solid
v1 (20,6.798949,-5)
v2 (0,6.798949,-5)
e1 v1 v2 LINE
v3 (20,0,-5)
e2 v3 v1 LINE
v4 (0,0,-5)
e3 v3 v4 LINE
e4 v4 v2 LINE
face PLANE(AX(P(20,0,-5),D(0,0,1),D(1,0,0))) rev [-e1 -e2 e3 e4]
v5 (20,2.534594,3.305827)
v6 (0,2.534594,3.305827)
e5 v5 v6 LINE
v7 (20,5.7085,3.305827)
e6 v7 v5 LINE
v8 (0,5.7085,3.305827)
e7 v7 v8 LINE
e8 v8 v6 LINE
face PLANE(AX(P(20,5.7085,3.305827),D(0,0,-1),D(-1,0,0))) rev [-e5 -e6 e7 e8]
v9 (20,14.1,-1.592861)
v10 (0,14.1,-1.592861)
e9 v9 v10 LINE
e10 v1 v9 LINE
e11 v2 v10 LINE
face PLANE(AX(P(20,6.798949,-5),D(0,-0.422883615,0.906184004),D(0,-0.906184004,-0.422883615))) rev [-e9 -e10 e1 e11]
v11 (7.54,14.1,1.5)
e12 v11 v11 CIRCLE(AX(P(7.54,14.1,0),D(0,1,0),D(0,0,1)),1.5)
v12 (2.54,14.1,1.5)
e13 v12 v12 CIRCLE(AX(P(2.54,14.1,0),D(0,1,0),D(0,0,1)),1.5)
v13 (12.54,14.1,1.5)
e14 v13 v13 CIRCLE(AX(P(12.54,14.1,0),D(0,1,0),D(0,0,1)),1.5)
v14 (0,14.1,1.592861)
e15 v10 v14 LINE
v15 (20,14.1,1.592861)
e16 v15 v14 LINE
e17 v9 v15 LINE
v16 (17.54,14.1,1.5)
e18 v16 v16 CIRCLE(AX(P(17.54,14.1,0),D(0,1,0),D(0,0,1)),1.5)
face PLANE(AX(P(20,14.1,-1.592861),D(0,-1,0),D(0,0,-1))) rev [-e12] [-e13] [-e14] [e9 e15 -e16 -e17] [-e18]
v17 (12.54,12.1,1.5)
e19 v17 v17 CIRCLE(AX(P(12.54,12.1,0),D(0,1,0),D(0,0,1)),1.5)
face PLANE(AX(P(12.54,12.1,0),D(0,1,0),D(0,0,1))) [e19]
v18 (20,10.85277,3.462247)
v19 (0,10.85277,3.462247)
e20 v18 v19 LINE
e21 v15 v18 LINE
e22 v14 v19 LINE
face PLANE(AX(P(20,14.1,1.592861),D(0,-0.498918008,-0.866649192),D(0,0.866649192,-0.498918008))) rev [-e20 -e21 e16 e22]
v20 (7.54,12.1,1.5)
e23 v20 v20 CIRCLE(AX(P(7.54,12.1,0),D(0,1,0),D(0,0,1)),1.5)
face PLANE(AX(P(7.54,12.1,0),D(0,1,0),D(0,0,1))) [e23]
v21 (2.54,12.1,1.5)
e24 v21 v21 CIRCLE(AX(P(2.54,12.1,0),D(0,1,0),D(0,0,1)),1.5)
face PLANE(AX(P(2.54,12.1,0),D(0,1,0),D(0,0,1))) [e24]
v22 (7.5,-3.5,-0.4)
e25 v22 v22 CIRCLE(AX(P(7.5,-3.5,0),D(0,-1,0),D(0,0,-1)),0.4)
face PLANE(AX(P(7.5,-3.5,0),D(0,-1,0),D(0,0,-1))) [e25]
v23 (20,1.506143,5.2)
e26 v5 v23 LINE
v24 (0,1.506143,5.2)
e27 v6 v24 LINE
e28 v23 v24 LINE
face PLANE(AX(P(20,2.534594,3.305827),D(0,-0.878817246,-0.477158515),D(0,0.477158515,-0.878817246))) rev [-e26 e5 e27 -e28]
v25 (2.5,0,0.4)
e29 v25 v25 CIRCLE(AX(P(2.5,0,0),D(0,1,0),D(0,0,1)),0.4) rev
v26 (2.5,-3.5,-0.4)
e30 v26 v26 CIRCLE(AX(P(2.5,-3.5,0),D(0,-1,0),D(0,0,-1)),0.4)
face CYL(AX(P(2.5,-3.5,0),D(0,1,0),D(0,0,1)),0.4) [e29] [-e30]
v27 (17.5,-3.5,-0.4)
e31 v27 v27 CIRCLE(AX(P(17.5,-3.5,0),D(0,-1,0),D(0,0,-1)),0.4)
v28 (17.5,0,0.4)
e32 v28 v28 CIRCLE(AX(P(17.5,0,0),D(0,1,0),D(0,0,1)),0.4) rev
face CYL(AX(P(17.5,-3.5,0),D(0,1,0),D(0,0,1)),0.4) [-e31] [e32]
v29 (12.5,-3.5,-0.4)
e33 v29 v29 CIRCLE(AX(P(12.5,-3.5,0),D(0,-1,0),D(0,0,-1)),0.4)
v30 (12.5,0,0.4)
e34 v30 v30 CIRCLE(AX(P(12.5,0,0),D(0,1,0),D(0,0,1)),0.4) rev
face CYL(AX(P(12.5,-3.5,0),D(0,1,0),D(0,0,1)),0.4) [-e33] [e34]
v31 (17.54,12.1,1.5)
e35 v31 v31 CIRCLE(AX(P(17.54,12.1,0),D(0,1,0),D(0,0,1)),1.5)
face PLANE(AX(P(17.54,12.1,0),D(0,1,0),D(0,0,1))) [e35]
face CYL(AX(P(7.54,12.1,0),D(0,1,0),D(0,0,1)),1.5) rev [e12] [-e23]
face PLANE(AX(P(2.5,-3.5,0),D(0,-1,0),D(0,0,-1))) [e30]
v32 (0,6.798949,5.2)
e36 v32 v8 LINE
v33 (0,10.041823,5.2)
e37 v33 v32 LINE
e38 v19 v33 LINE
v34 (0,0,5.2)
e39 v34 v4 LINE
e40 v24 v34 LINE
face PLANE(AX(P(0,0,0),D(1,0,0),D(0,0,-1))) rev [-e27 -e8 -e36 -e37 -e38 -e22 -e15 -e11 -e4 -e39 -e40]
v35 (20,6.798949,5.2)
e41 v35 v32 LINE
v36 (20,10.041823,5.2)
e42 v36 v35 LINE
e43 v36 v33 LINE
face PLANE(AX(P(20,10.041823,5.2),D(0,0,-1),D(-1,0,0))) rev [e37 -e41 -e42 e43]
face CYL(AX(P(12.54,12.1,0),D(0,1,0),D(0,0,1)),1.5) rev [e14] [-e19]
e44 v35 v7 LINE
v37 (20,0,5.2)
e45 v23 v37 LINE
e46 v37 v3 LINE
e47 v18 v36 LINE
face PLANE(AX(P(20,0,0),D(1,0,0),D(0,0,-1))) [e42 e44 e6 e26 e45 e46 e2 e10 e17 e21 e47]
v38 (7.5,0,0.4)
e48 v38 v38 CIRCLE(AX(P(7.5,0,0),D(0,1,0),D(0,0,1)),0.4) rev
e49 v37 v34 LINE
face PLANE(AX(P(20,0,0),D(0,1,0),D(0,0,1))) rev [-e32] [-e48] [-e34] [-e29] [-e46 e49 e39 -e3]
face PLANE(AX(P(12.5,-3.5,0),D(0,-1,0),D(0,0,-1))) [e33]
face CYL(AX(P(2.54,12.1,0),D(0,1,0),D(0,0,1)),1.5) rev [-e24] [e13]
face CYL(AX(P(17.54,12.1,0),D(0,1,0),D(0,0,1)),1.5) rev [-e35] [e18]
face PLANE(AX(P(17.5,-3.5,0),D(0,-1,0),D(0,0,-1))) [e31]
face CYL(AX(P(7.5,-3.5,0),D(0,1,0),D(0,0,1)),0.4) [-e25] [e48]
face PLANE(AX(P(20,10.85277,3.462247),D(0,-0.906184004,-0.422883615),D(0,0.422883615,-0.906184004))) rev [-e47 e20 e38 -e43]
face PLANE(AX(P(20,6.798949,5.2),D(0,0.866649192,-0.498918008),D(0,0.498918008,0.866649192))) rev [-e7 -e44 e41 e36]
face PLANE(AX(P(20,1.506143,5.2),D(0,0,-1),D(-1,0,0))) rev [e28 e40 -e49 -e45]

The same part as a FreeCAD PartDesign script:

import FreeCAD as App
import Part
import Sketcher
Q = App.Units.Quantity

doc = App.newDocument("Part")
body = doc.addObject("PartDesign::Body", "Body")

sketch1 = body.newObject("Sketcher::SketchObject", "Sketch")
sketch1.AttachmentSupport = (doc.getObject("YZ_Plane"), [""])
sketch1.MapMode = "FlatFace"
sketch1.addGeometry(Part.LineSegment(App.Vector(0, -5, 0), App.Vector(6.798949, -5, 0)), False)
sketch1.addGeometry(Part.LineSegment(App.Vector(6.798949, -5, 0), App.Vector(14.1, -1.592861, 0)), False)
sketch1.addGeometry(Part.LineSegment(App.Vector(14.1, -1.592861, 0), App.Vector(14.1, 1.592861, 0)), False)
sketch1.addGeometry(Part.LineSegment(App.Vector(14.1, 1.592861, 0), App.Vector(10.85277, 3.462247, 0)), False)
sketch1.addGeometry(Part.LineSegment(App.Vector(10.85277, 3.462247, 0), App.Vector(10.041823, 5.2, 0)), False)
sketch1.addGeometry(Part.LineSegment(App.Vector(10.041823, 5.2, 0), App.Vector(6.798949, 5.2, 0)), False)
sketch1.addGeometry(Part.LineSegment(App.Vector(6.798949, 5.2, 0), App.Vector(5.7085, 3.305827, 0)), False)
sketch1.addGeometry(Part.LineSegment(App.Vector(5.7085, 3.305827, 0), App.Vector(2.534594, 3.305827, 0)), False)
sketch1.addGeometry(Part.LineSegment(App.Vector(2.534594, 3.305827, 0), App.Vector(1.506143, 5.2, 0)), False)
sketch1.addGeometry(Part.LineSegment(App.Vector(1.506143, 5.2, 0), App.Vector(0, 5.2, 0)), False)
sketch1.addGeometry(Part.LineSegment(App.Vector(0, 5.2, 0), App.Vector(0, -5, 0)), False)
sketch1.addConstraint(Sketcher.Constraint("Coincident", 0, 2, 1, 1))
sketch1.addConstraint(Sketcher.Constraint("Coincident", 1, 2, 2, 1))
sketch1.addConstraint(Sketcher.Constraint("Coincident", 2, 2, 3, 1))
sketch1.addConstraint(Sketcher.Constraint("Coincident", 3, 2, 4, 1))
sketch1.addConstraint(Sketcher.Constraint("Coincident", 4, 2, 5, 1))
sketch1.addConstraint(Sketcher.Constraint("Coincident", 5, 2, 6, 1))
sketch1.addConstraint(Sketcher.Constraint("Coincident", 6, 2, 7, 1))
sketch1.addConstraint(Sketcher.Constraint("Coincident", 7, 2, 8, 1))
sketch1.addConstraint(Sketcher.Constraint("Coincident", 8, 2, 9, 1))
sketch1.addConstraint(Sketcher.Constraint("Coincident", 9, 2, 10, 1))
sketch1.addConstraint(Sketcher.Constraint("Coincident", 10, 2, 0, 1))
sketch1.addConstraint(Sketcher.Constraint("Horizontal", 0))
sketch1.addConstraint(Sketcher.Constraint("Vertical", 2))
sketch1.addConstraint(Sketcher.Constraint("Horizontal", 5))
sketch1.addConstraint(Sketcher.Constraint("Horizontal", 7))
sketch1.addConstraint(Sketcher.Constraint("Horizontal", 9))
sketch1.addConstraint(Sketcher.Constraint("Vertical", 10))
sketch1.addConstraint(Sketcher.Constraint("PointOnObject", 9, 2, -2))
sketch1.addConstraint(Sketcher.Constraint("Perpendicular", 1, 4))
sketch1.addConstraint(Sketcher.Constraint("Perpendicular", 3, 6))
sketch1.addConstraint(Sketcher.Constraint("Horizontal", 5, 2, 8, 2))
sketch1.addConstraint(Sketcher.Constraint("Vertical", 0, 2, 5, 2))
sketch1.addConstraint(Sketcher.Constraint("DistanceY", 10, 2, 10, 1, 10.2))
sketch1.addConstraint(Sketcher.Constraint("DistanceY", 0, 2, -1, 1, 5.0))
sketch1.addConstraint(Sketcher.Constraint("Angle", 8, Q("118.499984 deg")))
sketch1.addConstraint(Sketcher.Constraint("DistanceX", -1, 1, 1, 2, 14.1))
sketch1.addConstraint(Sketcher.Constraint("DistanceX", 0, 1, 0, 2, 6.798949))
sketch1.addConstraint(Sketcher.Constraint("DistanceX", -1, 1, 6, 2, 5.7085))
sketch1.addConstraint(Sketcher.Constraint("Distance", 1, 8.056918))
sketch1.addConstraint(Sketcher.Constraint("Distance", 3, 3.746879))
sketch1.addConstraint(Sketcher.Constraint("Distance", 4, 1.917661))
sketch1.addConstraint(Sketcher.Constraint("Distance", 6, 2.185628))
sketch1.addConstraint(Sketcher.Constraint("DistanceX", 7, 2, 7, 1, 3.173906))
pad1 = body.newObject("PartDesign::Pad", "Pad")
pad1.Profile = sketch1
pad1.Length = 20

sketch2 = body.newObject("Sketcher::SketchObject", "Sketch001")
sketch2.AttachmentSupport = (doc.getObject("XZ_Plane"), [""])
sketch2.MapMode = "FlatFace"
sketch2.AttachmentOffset = App.Placement(App.Vector(0, 0, -14.1), App.Rotation())
sketch2.addGeometry(Part.Circle(App.Vector(2.54, 0, 0), App.Vector(0, 0, 1), 1.5), False)
sketch2.addGeometry(Part.Circle(App.Vector(7.54, 0, 0), App.Vector(0, 0, 1), 1.5), False)
sketch2.addGeometry(Part.Circle(App.Vector(12.54, 0, 0), App.Vector(0, 0, 1), 1.5), False)
sketch2.addGeometry(Part.Circle(App.Vector(17.54, 0, 0), App.Vector(0, 0, 1), 1.5), False)
sketch2.addConstraint(Sketcher.Constraint("Equal", 0, 1))
sketch2.addConstraint(Sketcher.Constraint("Equal", 1, 2))
sketch2.addConstraint(Sketcher.Constraint("Equal", 2, 3))
sketch2.addConstraint(Sketcher.Constraint("PointOnObject", 0, 3, -1))
sketch2.addConstraint(Sketcher.Constraint("PointOnObject", 1, 3, -1))
sketch2.addConstraint(Sketcher.Constraint("PointOnObject", 2, 3, -1))
sketch2.addConstraint(Sketcher.Constraint("PointOnObject", 3, 3, -1))
sketch2.addConstraint(Sketcher.Constraint("Diameter", 0, 3.0))
sketch2.addConstraint(Sketcher.Constraint("DistanceX", 0, 3, 1, 3, 5.0))
sketch2.addConstraint(Sketcher.Constraint("DistanceX", 1, 3, 2, 3, 5.0))
sketch2.addConstraint(Sketcher.Constraint("DistanceX", 2, 3, 3, 3, 5.0))
sketch2.addConstraint(Sketcher.Constraint("DistanceX", -1, 1, 0, 3, 2.54))
pocket1 = body.newObject("PartDesign::Pocket", "Pocket")
pocket1.Profile = sketch2
pocket1.Length = 2
pocket1.Reversed = True

sketch3 = body.newObject("Sketcher::SketchObject", "Sketch002")
sketch3.AttachmentSupport = (doc.getObject("XZ_Plane"), [""])
sketch3.MapMode = "FlatFace"
sketch3.addGeometry(Part.Circle(App.Vector(2.5, 0, 0), App.Vector(0, 0, 1), 0.4), False)
sketch3.addGeometry(Part.Circle(App.Vector(7.5, 0, 0), App.Vector(0, 0, 1), 0.4), False)
sketch3.addGeometry(Part.Circle(App.Vector(12.5, 0, 0), App.Vector(0, 0, 1), 0.4), False)
sketch3.addGeometry(Part.Circle(App.Vector(17.5, 0, 0), App.Vector(0, 0, 1), 0.4), False)
sketch3.addConstraint(Sketcher.Constraint("Equal", 0, 1))
sketch3.addConstraint(Sketcher.Constraint("Equal", 1, 2))
sketch3.addConstraint(Sketcher.Constraint("Equal", 2, 3))
sketch3.addConstraint(Sketcher.Constraint("PointOnObject", 0, 3, -1))
sketch3.addConstraint(Sketcher.Constraint("PointOnObject", 1, 3, -1))
sketch3.addConstraint(Sketcher.Constraint("PointOnObject", 2, 3, -1))
sketch3.addConstraint(Sketcher.Constraint("PointOnObject", 3, 3, -1))
sketch3.addConstraint(Sketcher.Constraint("Diameter", 0, 0.8))
sketch3.addConstraint(Sketcher.Constraint("DistanceX", 0, 3, 1, 3, 5.0))
sketch3.addConstraint(Sketcher.Constraint("DistanceX", 1, 3, 2, 3, 5.0))
sketch3.addConstraint(Sketcher.Constraint("DistanceX", 2, 3, 3, 3, 5.0))
sketch3.addConstraint(Sketcher.Constraint("DistanceX", -1, 1, 0, 3, 2.5))
pad2 = body.newObject("PartDesign::Pad", "Pad001")
pad2.Profile = sketch3
pad2.Length = 3.5

doc.recompute()
